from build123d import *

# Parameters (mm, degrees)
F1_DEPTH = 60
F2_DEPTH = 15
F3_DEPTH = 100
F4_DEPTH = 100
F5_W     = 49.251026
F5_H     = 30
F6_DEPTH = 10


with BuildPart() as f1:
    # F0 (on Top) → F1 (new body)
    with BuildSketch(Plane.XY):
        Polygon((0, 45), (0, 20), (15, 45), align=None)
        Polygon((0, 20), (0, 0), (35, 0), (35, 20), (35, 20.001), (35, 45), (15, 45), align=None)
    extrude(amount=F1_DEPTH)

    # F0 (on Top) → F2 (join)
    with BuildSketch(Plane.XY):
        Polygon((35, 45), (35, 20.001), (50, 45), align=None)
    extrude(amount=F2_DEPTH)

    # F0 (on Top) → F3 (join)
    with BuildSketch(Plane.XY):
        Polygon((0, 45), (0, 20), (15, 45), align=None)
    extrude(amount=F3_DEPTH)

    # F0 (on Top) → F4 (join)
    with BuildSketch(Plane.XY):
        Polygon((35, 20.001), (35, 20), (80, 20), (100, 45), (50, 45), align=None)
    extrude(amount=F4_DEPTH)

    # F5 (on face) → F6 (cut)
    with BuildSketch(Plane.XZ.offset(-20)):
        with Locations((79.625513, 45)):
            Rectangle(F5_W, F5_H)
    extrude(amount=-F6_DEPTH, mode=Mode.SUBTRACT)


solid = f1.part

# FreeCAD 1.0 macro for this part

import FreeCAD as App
import Part
import Sketcher
from FreeCAD import Vector


def add_polygon(sketch, points):
    """Adds a closed chain of lines whose ends are joined by coincident constraints."""
    first, n = sketch.GeometryCount, len(points)
    for a, b in zip(points, points[1:] + points[:1]):
        sketch.addGeometry(Part.LineSegment(App.Vector(*a, 0), App.Vector(*b, 0)), False)
    for i in range(n):
        sketch.addConstraint(Sketcher.Constraint("Coincident", first + i, 2, first + (i + 1) % n, 1))

doc = App.newDocument("Part")
params = doc.addObject("Spreadsheet::Sheet", "Params")
for row, (alias, value) in enumerate([
    ("sketch1_width", "35 mm"),
    ("sketch1_height", "45 mm"),
    ("pad1_length", "60 mm"),
    ("sketch2_width", "15 mm"),
    ("pad2_length", "15 mm"),
    ("sketch3_width", "15 mm"),
    ("sketch3_height", "25 mm"),
    ("pad3_length", "100 mm"),
    ("sketch4_width", "45 mm"),
    ("sketch4_width2", "50 mm"),
    ("pad4_length", "100 mm"),
    ("sketch5_height", "30 mm"),
    ("pocket1_length", "10 mm"),
], start=1):
    params.set(f"A{row}", alias)
    params.set(f"B{row}", "=" + value)
    params.setAlias(f"B{row}", alias)

body = doc.addObject("PartDesign::Body", "Body")

sketch1 = body.newObject("Sketcher::SketchObject", "Sketch")
sketch1.AttachmentSupport = (doc.getObject("XY_Plane"), [""])
sketch1.MapMode = "FlatFace"
add_polygon(sketch1, [(0, 45), (0, 0), (35, 0), (35, 45)])
sketch1.addConstraint(Sketcher.Constraint("Vertical", 0))
sketch1.addConstraint(Sketcher.Constraint("Horizontal", 1))
sketch1.addConstraint(Sketcher.Constraint("Vertical", 2))
sketch1.addConstraint(Sketcher.Constraint("Horizontal", 3))
sketch1.addConstraint(Sketcher.Constraint("Coincident", 0, 2, -1, 1))
sketch1.addConstraint(Sketcher.Constraint("DistanceX", 1, 1, 1, 2, 35.0))
sketch1.addConstraint(Sketcher.Constraint("DistanceY", 0, 2, 0, 1, 45.0))
sketch1.setExpression("Constraints[9]", "Params.sketch1_width")
sketch1.setExpression("Constraints[10]", "Params.sketch1_height")
pad1 = body.newObject("PartDesign::Pad", "Pad")
pad1.Profile = sketch1
pad1.setExpression("Length", "Params.pad1_length")

sketch2 = body.newObject("Sketcher::SketchObject", "Sketch001")
sketch2.AttachmentSupport = (doc.getObject("XY_Plane"), [""])
sketch2.MapMode = "FlatFace"
add_polygon(sketch2, [(35, 45), (35, 20), (50, 45)])
sketch2.addConstraint(Sketcher.Constraint("Vertical", 0))
sketch2.addConstraint(Sketcher.Constraint("Horizontal", 2))
sketch2.addConstraint(Sketcher.Constraint("DistanceX", 2, 2, 2, 1, 15.0))
sketch2.addConstraint(Sketcher.Constraint("DistanceX", -1, 1, 0, 2, 35.0))
sketch2.addConstraint(Sketcher.Constraint("DistanceY", -1, 1, 1, 2, 45.0))
sketch2.addConstraint(Sketcher.Constraint("DistanceY", 0, 2, 0, 1, 24.999))
sketch2.setExpression("Constraints[5]", "Params.sketch2_width")
pad2 = body.newObject("PartDesign::Pad", "Pad001")
pad2.Profile = sketch2
pad2.setExpression("Length", "Params.pad2_length")

sketch3 = body.newObject("Sketcher::SketchObject", "Sketch002")
sketch3.AttachmentSupport = (doc.getObject("XY_Plane"), [""])
sketch3.MapMode = "FlatFace"
add_polygon(sketch3, [(0, 45), (0, 20), (15, 45)])
sketch3.addConstraint(Sketcher.Constraint("Vertical", 0))
sketch3.addConstraint(Sketcher.Constraint("Horizontal", 2))
sketch3.addConstraint(Sketcher.Constraint("PointOnObject", 0, 2, -2))
sketch3.addConstraint(Sketcher.Constraint("DistanceX", 2, 2, 2, 1, 15.0))
sketch3.addConstraint(Sketcher.Constraint("DistanceY", 0, 2, 0, 1, 25.0))
sketch3.addConstraint(Sketcher.Constraint("DistanceY", -1, 1, 0, 2, 20.0))
sketch3.setExpression("Constraints[6]", "Params.sketch3_width")
sketch3.setExpression("Constraints[7]", "Params.sketch3_height")
pad3 = body.newObject("PartDesign::Pad", "Pad002")
pad3.Profile = sketch3
pad3.setExpression("Length", "Params.pad3_length")

sketch4 = body.newObject("Sketcher::SketchObject", "Sketch003")
sketch4.AttachmentSupport = (doc.getObject("XY_Plane"), [""])
sketch4.MapMode = "FlatFace"
add_polygon(sketch4, [(35, 20.001), (35, 20), (80, 20), (100, 45), (50, 45)])
sketch4.addConstraint(Sketcher.Constraint("Vertical", 0))
sketch4.addConstraint(Sketcher.Constraint("Horizontal", 1))
sketch4.addConstraint(Sketcher.Constraint("Horizontal", 3))
sketch4.addConstraint(Sketcher.Constraint("DistanceX", 1, 1, 1, 2, 45.0))
sketch4.addConstraint(Sketcher.Constraint("DistanceX", 3, 2, 3, 1, 50.0))
sketch4.addConstraint(Sketcher.Constraint("DistanceX", -1, 1, 0, 2, 35.0))
sketch4.addConstraint(Sketcher.Constraint("DistanceY", -1, 1, 0, 2, 20.0))
sketch4.addConstraint(Sketcher.Constraint("DistanceX", -1, 1, 2, 2, 100.0))
sketch4.addConstraint(Sketcher.Constraint("DistanceY", -1, 1, 2, 2, 45.0))
sketch4.addConstraint(Sketcher.Constraint("DistanceY", 0, 2, 0, 1, 0.001))
sketch4.setExpression("Constraints[8]", "Params.sketch4_width")
sketch4.setExpression("Constraints[9]", "Params.sketch4_width2")
pad4 = body.newObject("PartDesign::Pad", "Pad003")
pad4.Profile = sketch4
pad4.setExpression("Length", "Params.pad4_length")

sketch5 = body.newObject("Sketcher::SketchObject", "Sketch004")
sketch5.AttachmentSupport = (doc.getObject("XZ_Plane"), [""])
sketch5.MapMode = "FlatFace"
sketch5.AttachmentOffset = App.Placement(Vector(0, 0, -20), App.Rotation())
add_polygon(sketch5, [(55, 60), (55, 30), (104, 30), (104, 60)])
sketch5.addConstraint(Sketcher.Constraint("Vertical", 0))
sketch5.addConstraint(Sketcher.Constraint("Horizontal", 1))
sketch5.addConstraint(Sketcher.Constraint("Vertical", 2))
sketch5.addConstraint(Sketcher.Constraint("Horizontal", 3))
sketch5.addConstraint(Sketcher.Constraint("DistanceY", 0, 2, 0, 1, 30.0))
sketch5.addConstraint(Sketcher.Constraint("DistanceX", -1, 1, 0, 2, 55.0))
sketch5.addConstraint(Sketcher.Constraint("DistanceY", -1, 1, 0, 2, 30.0))
sketch5.addConstraint(Sketcher.Constraint("DistanceX", 1, 1, 1, 2, 49.251026))
sketch5.setExpression("Constraints[8]", "Params.sketch5_height")
pocket1 = body.newObject("PartDesign::Pocket", "Pocket")
pocket1.Profile = sketch5
pocket1.setExpression("Length", "Params.pocket1_length")

doc.recompute()
